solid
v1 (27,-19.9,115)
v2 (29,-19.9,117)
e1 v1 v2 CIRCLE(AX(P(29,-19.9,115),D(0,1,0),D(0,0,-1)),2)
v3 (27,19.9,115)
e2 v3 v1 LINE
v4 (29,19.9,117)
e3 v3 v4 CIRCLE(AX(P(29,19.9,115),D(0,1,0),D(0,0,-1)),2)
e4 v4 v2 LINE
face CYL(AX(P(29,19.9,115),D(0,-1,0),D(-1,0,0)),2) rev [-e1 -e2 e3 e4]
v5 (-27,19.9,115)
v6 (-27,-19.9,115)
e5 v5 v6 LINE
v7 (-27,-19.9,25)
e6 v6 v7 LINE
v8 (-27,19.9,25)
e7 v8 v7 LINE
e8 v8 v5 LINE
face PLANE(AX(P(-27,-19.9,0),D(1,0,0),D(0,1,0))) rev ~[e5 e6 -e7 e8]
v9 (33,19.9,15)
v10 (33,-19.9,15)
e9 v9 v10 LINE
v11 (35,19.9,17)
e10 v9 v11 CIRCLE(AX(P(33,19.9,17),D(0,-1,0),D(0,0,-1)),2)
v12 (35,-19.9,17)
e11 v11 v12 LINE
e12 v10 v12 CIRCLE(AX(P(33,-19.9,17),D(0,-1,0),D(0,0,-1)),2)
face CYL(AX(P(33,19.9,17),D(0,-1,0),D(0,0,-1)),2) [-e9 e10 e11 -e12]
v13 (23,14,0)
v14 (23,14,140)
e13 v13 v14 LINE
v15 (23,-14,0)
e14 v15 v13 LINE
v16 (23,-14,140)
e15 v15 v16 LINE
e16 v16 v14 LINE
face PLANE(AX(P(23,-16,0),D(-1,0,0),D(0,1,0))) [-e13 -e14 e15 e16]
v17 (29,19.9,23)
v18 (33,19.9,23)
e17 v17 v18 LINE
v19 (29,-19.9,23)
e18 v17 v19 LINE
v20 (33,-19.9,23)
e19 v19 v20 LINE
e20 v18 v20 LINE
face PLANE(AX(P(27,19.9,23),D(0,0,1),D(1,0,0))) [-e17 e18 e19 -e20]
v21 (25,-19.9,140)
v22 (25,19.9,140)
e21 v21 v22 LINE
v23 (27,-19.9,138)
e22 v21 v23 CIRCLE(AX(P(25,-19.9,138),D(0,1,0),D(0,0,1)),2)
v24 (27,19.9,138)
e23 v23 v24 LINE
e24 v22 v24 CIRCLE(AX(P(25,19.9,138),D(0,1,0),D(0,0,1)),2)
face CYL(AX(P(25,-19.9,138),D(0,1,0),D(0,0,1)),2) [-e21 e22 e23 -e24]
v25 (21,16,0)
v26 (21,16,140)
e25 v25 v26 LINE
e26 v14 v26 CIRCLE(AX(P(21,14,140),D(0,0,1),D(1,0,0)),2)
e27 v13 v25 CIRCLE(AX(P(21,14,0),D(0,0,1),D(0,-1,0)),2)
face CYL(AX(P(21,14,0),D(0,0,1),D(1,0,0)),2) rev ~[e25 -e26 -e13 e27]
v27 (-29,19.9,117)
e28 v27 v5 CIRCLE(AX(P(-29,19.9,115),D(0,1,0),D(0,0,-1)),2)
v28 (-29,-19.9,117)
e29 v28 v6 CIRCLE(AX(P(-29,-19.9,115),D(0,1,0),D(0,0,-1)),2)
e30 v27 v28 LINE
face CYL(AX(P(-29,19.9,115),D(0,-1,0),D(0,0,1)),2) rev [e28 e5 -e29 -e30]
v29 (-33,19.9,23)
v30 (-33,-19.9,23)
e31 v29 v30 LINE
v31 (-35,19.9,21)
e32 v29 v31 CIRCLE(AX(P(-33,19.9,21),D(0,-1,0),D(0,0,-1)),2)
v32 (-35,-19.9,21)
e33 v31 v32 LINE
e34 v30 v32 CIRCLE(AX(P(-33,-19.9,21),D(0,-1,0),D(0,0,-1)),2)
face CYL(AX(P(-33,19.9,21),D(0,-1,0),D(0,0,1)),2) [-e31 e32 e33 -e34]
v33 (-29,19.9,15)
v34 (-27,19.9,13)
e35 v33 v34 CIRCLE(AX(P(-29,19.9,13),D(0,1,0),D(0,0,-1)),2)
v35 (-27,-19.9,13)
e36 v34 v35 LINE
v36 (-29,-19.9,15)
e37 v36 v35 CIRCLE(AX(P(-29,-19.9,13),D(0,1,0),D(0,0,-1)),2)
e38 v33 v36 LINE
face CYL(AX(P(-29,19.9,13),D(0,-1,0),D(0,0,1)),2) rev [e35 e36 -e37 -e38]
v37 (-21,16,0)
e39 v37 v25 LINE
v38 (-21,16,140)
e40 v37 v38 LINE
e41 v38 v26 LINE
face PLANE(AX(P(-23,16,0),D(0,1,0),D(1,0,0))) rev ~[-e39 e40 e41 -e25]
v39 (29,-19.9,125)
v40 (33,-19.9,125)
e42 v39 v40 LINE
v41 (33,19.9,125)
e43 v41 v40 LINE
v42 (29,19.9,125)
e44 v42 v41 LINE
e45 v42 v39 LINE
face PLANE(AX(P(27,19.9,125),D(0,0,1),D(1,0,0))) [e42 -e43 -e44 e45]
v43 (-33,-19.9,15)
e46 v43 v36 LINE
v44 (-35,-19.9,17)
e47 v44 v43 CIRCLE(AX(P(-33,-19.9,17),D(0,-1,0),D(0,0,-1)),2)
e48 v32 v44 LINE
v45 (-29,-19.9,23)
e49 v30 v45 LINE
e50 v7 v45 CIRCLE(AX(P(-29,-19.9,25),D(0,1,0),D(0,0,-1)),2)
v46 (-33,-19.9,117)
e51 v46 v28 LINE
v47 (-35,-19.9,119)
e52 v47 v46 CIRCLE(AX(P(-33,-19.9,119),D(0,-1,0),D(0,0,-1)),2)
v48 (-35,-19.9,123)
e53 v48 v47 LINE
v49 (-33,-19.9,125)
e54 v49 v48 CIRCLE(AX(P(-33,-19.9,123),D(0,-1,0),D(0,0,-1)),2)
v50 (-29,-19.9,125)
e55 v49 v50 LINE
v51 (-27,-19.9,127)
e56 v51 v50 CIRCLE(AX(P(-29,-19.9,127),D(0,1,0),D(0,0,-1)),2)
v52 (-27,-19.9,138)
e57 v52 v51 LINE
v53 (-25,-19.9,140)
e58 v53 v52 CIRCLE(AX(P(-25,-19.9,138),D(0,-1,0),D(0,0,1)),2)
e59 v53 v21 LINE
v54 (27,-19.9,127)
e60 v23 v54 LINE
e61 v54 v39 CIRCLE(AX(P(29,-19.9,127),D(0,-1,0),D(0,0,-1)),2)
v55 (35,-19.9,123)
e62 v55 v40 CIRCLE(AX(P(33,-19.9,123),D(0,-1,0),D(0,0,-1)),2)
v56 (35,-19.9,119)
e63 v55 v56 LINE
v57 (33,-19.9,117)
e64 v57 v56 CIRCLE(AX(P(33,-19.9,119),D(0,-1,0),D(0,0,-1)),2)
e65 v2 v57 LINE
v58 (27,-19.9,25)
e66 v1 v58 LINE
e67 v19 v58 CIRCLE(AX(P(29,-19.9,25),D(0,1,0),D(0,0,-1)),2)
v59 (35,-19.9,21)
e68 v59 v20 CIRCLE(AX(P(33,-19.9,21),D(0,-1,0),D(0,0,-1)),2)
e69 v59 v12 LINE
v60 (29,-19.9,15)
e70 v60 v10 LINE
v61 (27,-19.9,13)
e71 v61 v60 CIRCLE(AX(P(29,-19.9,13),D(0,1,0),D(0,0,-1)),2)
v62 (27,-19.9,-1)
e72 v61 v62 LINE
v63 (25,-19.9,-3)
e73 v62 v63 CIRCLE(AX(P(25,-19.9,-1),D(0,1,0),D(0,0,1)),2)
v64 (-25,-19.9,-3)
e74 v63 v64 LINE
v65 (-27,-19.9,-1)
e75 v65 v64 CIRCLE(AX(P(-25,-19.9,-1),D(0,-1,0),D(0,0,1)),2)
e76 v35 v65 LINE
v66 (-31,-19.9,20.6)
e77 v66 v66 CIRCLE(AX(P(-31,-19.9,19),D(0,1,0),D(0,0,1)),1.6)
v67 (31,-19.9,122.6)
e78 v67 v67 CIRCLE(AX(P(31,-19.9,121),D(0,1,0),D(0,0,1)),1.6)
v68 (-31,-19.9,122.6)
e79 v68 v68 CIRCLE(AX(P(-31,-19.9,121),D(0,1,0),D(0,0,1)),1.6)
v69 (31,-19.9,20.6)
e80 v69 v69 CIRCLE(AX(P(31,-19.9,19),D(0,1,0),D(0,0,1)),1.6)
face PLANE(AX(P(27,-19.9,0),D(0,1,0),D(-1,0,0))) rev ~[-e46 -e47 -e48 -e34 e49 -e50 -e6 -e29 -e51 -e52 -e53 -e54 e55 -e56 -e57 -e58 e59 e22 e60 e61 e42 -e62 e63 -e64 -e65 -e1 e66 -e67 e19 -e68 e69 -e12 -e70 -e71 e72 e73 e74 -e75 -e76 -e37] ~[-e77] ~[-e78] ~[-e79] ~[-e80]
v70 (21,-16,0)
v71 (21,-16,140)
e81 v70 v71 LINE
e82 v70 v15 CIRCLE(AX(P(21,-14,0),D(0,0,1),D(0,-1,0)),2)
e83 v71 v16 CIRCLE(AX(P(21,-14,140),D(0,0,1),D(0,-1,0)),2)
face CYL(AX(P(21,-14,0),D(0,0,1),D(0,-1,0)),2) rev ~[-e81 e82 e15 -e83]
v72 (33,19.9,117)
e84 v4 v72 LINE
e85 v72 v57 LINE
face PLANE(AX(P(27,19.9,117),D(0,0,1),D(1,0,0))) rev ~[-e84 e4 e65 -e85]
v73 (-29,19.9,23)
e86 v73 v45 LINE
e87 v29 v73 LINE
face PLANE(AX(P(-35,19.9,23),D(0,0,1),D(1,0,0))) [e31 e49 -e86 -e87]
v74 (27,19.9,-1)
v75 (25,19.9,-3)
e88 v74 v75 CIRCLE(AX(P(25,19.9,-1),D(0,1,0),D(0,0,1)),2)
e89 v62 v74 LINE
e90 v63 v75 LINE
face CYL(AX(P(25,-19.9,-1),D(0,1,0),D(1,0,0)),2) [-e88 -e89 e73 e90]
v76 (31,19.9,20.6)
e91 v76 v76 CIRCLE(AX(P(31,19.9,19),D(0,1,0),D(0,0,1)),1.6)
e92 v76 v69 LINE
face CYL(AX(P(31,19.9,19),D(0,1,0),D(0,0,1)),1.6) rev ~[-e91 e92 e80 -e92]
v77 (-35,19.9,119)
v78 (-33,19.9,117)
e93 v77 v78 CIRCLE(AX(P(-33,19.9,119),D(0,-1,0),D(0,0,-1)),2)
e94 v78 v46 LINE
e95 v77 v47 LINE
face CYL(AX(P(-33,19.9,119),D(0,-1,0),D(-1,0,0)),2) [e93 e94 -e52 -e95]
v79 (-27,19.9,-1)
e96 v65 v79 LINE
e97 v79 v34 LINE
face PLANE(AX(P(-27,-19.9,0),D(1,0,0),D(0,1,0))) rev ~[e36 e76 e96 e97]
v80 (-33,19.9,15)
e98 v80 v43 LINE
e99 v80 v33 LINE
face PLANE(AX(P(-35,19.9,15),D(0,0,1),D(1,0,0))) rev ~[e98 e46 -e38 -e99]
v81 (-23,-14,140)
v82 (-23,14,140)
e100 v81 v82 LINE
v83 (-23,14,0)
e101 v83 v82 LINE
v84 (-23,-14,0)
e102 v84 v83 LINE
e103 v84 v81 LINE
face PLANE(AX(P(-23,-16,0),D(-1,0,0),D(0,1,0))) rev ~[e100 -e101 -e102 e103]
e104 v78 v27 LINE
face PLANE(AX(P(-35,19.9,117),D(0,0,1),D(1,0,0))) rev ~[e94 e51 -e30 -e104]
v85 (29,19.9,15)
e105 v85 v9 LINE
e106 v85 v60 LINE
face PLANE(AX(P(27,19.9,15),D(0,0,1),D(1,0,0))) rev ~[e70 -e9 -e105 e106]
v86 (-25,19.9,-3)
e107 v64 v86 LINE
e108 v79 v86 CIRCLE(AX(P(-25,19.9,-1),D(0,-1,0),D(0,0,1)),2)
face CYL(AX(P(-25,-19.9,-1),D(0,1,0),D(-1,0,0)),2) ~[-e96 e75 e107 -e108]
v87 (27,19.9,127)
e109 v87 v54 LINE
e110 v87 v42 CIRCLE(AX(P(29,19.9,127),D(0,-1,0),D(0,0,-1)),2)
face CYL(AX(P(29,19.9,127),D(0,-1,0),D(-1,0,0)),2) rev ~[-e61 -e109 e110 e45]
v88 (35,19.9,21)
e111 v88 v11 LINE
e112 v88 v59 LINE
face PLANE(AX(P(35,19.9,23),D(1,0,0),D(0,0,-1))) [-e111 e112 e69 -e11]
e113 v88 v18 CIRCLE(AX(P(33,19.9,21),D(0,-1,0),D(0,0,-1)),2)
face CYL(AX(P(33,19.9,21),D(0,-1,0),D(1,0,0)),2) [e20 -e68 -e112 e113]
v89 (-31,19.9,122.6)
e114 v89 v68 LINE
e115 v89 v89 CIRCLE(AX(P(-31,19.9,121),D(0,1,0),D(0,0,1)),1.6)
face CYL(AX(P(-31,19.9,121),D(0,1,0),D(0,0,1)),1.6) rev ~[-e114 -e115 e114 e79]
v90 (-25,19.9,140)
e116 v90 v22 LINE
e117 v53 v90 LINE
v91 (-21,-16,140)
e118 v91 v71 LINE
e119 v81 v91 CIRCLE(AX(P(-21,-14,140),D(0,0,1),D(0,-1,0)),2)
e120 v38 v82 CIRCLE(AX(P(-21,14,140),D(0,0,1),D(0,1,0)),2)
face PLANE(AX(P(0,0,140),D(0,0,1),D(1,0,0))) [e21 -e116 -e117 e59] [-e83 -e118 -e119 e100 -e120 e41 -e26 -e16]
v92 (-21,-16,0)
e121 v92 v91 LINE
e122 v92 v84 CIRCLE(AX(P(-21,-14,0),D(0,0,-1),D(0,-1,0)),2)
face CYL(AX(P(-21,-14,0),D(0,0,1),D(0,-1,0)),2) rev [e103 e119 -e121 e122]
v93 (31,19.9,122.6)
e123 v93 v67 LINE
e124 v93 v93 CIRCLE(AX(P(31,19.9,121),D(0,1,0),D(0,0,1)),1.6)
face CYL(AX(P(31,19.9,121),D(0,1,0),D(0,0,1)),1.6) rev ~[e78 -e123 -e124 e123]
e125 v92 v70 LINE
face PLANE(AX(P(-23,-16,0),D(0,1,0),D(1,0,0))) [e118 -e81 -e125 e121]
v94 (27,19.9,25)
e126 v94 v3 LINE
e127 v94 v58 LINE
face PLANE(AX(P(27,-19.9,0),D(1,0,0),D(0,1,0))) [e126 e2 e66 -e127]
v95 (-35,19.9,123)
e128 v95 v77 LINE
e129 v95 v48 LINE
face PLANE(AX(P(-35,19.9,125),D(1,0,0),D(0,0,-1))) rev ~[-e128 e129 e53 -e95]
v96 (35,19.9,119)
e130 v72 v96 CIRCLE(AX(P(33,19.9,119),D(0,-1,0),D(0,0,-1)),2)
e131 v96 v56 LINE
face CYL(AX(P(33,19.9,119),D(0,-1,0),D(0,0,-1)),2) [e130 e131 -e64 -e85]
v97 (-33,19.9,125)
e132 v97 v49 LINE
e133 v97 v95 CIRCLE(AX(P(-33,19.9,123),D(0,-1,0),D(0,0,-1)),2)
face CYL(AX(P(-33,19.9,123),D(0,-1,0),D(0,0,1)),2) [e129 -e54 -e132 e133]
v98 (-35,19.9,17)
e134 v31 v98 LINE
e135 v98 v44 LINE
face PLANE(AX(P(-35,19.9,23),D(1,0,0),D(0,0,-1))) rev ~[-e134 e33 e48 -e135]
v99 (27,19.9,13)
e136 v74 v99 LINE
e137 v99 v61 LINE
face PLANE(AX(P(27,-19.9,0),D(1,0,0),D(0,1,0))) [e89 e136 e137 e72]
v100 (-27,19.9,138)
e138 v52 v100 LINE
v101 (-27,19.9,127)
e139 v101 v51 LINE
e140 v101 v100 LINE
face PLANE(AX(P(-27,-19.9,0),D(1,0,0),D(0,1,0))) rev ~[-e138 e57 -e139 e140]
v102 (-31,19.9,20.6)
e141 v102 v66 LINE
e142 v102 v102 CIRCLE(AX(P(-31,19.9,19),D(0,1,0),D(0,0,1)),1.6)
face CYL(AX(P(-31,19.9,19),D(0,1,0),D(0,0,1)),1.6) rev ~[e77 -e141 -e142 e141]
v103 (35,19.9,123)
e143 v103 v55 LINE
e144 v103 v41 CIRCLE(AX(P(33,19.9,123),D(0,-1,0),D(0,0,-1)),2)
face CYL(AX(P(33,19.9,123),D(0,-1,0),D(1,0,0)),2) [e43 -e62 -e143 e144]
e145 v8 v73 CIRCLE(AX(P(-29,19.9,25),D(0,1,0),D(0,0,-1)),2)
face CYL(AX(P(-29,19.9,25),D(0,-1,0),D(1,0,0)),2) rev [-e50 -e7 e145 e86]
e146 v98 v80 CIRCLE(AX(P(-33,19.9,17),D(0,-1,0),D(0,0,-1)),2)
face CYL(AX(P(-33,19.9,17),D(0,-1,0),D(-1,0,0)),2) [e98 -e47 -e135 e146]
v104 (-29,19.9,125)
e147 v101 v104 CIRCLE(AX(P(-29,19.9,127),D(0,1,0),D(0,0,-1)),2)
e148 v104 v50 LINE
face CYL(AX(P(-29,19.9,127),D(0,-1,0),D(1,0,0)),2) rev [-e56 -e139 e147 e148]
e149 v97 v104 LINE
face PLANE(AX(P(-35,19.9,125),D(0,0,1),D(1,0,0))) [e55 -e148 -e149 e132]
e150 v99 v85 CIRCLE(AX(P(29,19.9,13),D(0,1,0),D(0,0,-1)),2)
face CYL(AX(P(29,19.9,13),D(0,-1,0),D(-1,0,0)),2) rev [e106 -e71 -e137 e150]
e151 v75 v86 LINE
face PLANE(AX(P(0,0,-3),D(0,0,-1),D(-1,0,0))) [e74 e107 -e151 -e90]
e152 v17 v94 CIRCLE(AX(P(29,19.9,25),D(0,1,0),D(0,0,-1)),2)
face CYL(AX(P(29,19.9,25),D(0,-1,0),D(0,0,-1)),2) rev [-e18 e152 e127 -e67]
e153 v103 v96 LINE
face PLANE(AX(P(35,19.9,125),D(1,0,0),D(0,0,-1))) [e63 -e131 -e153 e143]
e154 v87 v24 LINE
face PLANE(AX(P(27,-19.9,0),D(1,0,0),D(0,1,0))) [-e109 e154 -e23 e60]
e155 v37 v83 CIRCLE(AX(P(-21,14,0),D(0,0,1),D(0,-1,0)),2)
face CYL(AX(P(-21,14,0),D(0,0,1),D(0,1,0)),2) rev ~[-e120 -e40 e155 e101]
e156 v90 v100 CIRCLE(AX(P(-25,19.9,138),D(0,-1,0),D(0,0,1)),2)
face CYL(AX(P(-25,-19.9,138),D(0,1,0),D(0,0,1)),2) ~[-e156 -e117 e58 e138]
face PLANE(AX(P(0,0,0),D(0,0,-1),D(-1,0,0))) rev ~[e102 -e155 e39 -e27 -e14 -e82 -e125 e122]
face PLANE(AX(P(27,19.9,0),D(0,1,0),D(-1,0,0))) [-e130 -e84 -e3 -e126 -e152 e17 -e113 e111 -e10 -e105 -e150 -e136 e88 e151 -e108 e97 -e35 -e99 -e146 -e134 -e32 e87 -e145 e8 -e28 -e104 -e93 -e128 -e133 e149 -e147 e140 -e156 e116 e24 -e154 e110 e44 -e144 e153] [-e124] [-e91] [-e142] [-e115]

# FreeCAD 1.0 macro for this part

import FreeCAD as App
import Part
import Sketcher


def edges_at(feature, points):
    """Names of the edges that pass closest to the given points."""
    edges = feature.Shape.Edges
    near = lambda p: min(range(len(edges)), key=lambda i: edges[i].distToShape(Part.Vertex(*p))[0])
    return sorted({f"Edge{near(p) + 1}" for p in points})


def add_polygon(sketch, points):
    """Adds a closed chain of lines whose ends are joined by coincident constraints."""
    first, n = sketch.GeometryCount, len(points)
    for a, b in zip(points, points[1:] + points[:1]):
        sketch.addGeometry(Part.LineSegment(App.Vector(*a, 0), App.Vector(*b, 0)), False)
    for i in range(n):
        sketch.addConstraint(Sketcher.Constraint("Coincident", first + i, 2, first + (i + 1) % n, 1))

doc = App.newDocument("Part")
body = doc.addObject("PartDesign::Body", "Body")

# Sketch on XY plane
sketch1 = body.newObject("Sketcher::SketchObject", "Sketch")
sketch1.AttachmentSupport = (doc.getObject("XY_Plane"), [""])
sketch1.MapMode = "FlatFace"
add_polygon(sketch1, [(-27, 20), (-27, -20), (27, -20), (27, 20)])  # lines 0-3
add_polygon(sketch1, [(23, -16), (-23, -16), (-23, 16), (23, 16)])  # lines 4-7
sketch1.addConstraint([
    Sketcher.Constraint("Vertical", 0),
    Sketcher.Constraint("Horizontal", 1),
    Sketcher.Constraint("Vertical", 2),
    Sketcher.Constraint("Horizontal", 3),
    Sketcher.Constraint("Horizontal", 4),
    Sketcher.Constraint("Vertical", 5),
    Sketcher.Constraint("Horizontal", 6),
    Sketcher.Constraint("Vertical", 7),
    Sketcher.Constraint("Symmetric", 0, 2, 2, 2, -1, 1),
    Sketcher.Constraint("Symmetric", 4, 2, 6, 2, -1, 1),
    Sketcher.Constraint("DistanceX", 1, 1, 1, 2, 54.0),
    Sketcher.Constraint("DistanceX", 4, 2, 4, 1, 46.0),
    Sketcher.Constraint("DistanceY", 5, 1, 5, 2, 32.0),
    Sketcher.Constraint("DistanceY", 0, 2, 0, 1, 39.8),
])
pad1 = body.newObject("PartDesign::Pad", "Pad")
pad1.Profile = sketch1
pad1.Length = 143

# Sketch on XY plane
sketch2 = body.newObject("Sketcher::SketchObject", "Sketch001")
sketch2.AttachmentSupport = (doc.getObject("XY_Plane"), [""])
sketch2.MapMode = "FlatFace"
add_polygon(sketch2, [(27, 20), (27, -20), (-27, -20), (-27, 20)])  # lines 0-3
sketch2.addConstraint([
    Sketcher.Constraint("Vertical", 0),
    Sketcher.Constraint("Horizontal", 1),
    Sketcher.Constraint("Vertical", 2),
    Sketcher.Constraint("Horizontal", 3),
    Sketcher.Constraint("Symmetric", 0, 2, 2, 2, -1, 1),
    Sketcher.Constraint("DistanceX", 1, 2, 1, 1, 54.0),
    Sketcher.Constraint("DistanceY", 0, 2, 0, 1, 39.8),
])
pad2 = body.newObject("PartDesign::Pad", "Pad001")
pad2.Profile = sketch2
pad2.Length = 3
pad2.Reversed = True

# Sketch on XZ plane
sketch3 = body.newObject("Sketcher::SketchObject", "Sketch002")
sketch3.AttachmentSupport = (doc.getObject("XZ_Plane"), [""])
sketch3.MapMode = "FlatFace"
sketch3.AttachmentOffset = App.Placement(App.Vector(0, 0, -19.9), App.Rotation())
add_polygon(sketch3, [(-35, 117), (-35, 125), (-27, 125), (-27, 117)])  # lines 0-3
sketch3.addGeometry(Part.Circle(App.Vector(-31, 121, 0), App.Vector(0, 0, 1), 1.6), False)  # 4
add_polygon(sketch3, [(27, 117), (27, 125), (35, 125), (35, 117)])  # lines 5-8
sketch3.addGeometry(Part.Circle(App.Vector(31, 121, 0), App.Vector(0, 0, 1), 1.6), False)  # 9
add_polygon(sketch3, [(27, 15), (27, 23), (35, 23), (35, 15)])  # lines 10-13
sketch3.addGeometry(Part.Circle(App.Vector(31, 19, 0), App.Vector(0, 0, 1), 1.6), False)  # 14
add_polygon(sketch3, [(-35, 15), (-35, 23), (-27, 23), (-27, 15)])  # lines 15-18
sketch3.addGeometry(Part.Circle(App.Vector(-31, 19, 0), App.Vector(0, 0, 1), 1.6), False)  # 19
sketch3.addConstraint([
    Sketcher.Constraint("Vertical", 0),
    Sketcher.Constraint("Horizontal", 1),
    Sketcher.Constraint("Vertical", 2),
    Sketcher.Constraint("Horizontal", 3),
    Sketcher.Constraint("Vertical", 5),
    Sketcher.Constraint("Horizontal", 6),
    Sketcher.Constraint("Vertical", 7),
    Sketcher.Constraint("Horizontal", 8),
    Sketcher.Constraint("Vertical", 10),
    Sketcher.Constraint("Horizontal", 11),
    Sketcher.Constraint("Vertical", 12),
    Sketcher.Constraint("Horizontal", 13),
    Sketcher.Constraint("Vertical", 15),
    Sketcher.Constraint("Horizontal", 16),
    Sketcher.Constraint("Vertical", 17),
    Sketcher.Constraint("Horizontal", 18),
    Sketcher.Constraint("Equal", 4, 9),
    Sketcher.Constraint("Equal", 9, 14),
    Sketcher.Constraint("Equal", 14, 19),
    Sketcher.Constraint("Symmetric", 4, 3, 9, 3, -2),
    Sketcher.Constraint("Symmetric", 14, 3, 19, 3, -2),
    Sketcher.Constraint("Symmetric", 1, 2, 5, 2, -2),
    Sketcher.Constraint("Symmetric", 3, 2, 7, 2, -2),
    Sketcher.Constraint("Symmetric", 11, 2, 15, 2, -2),
    Sketcher.Constraint("Symmetric", 13, 2, 17, 2, -2),
    Sketcher.Constraint("Vertical", 9, 3, 14, 3),
    Sketcher.Constraint("Vertical", 8, 2, 10, 2),
    Sketcher.Constraint("Vertical", 7, 2, 11, 2),
    Sketcher.Constraint("Equal", 18, 0),
    Sketcher.Constraint("Equal", 7, 10),
    Sketcher.Constraint("Diameter", 4, 3.2),
    Sketcher.Constraint("DistanceX", 1, 1, 1, 2, 8.0),
    Sketcher.Constraint("DistanceX", 4, 3, -1, 1, 31.0),
    Sketcher.Constraint("DistanceY", -1, 1, 4, 3, 121.0),
    Sketcher.Constraint("DistanceY", -1, 1, 14, 3, 19.0),
    Sketcher.Constraint("DistanceX", 0, 2, -1, 1, 35.0),
    Sketcher.Constraint("DistanceY", -1, 1, 0, 2, 125.0),
    Sketcher.Constraint("DistanceY", -1, 1, 10, 2, 23.0),
])
pad3 = body.newObject("PartDesign::Pad", "Pad002")
pad3.Profile = sketch3
pad3.Length = 39.8
doc.recompute()

fillet = body.newObject("PartDesign::Fillet", "Fillet")
fillet.Base = (pad3, edges_at(pad3, [
    (23, -16, 71.5),
    (23, 16, 71.5),
    (-23, 16, 71.5),
    (-23, -16, 71.5),
]))
fillet.Radius = 2

# Sketch on XY plane
sketch4 = body.newObject("Sketcher::SketchObject", "Sketch003")
sketch4.AttachmentSupport = (doc.getObject("XY_Plane"), [""])
sketch4.MapMode = "FlatFace"
sketch4.AttachmentOffset = App.Placement(App.Vector(0, 0, 143), App.Rotation())
add_polygon(sketch4, [(-27, 20), (-27, -20), (27, -20), (27, 20)])  # lines 0-3
sketch4.addConstraint([
    Sketcher.Constraint("Vertical", 0),
    Sketcher.Constraint("Horizontal", 1),
    Sketcher.Constraint("Vertical", 2),
    Sketcher.Constraint("Horizontal", 3),
    Sketcher.Constraint("Symmetric", 0, 2, 2, 2, -1, 1),
    Sketcher.Constraint("DistanceX", 1, 1, 1, 2, 54.0),
    Sketcher.Constraint("DistanceY", 0, 2, 0, 1, 39.8),
])
pocket1 = body.newObject("PartDesign::Pocket", "Pocket")
pocket1.Profile = sketch4
pocket1.Length = 3
doc.recompute()

fillet2 = body.newObject("PartDesign::Fillet", "Fillet001")
fillet2.Base = (pocket1, edges_at(pocket1, [
    (-27, 0, 140),
    (27, 0, 140),
    (27, 0, -3),
    (-27, 0, -3),
    (27, 0, 125),
    (27, 0, 117),
    (35, 0, 117),
    (35, 0, 125),
    (-27, 0, 117),
    (-27, 0, 125),
    (-35, 0, 125),
    (-35, 0, 117),
    (27, 0, 23),
    (27, 0, 15),
    (35, 0, 15),
    (35, 0, 23),
    (-35, 0, 15),
    (-27, 0, 15),
    (-27, 0, 23),
    (-35, 0, 23),
]))
fillet2.Radius = 2

doc.recompute()
